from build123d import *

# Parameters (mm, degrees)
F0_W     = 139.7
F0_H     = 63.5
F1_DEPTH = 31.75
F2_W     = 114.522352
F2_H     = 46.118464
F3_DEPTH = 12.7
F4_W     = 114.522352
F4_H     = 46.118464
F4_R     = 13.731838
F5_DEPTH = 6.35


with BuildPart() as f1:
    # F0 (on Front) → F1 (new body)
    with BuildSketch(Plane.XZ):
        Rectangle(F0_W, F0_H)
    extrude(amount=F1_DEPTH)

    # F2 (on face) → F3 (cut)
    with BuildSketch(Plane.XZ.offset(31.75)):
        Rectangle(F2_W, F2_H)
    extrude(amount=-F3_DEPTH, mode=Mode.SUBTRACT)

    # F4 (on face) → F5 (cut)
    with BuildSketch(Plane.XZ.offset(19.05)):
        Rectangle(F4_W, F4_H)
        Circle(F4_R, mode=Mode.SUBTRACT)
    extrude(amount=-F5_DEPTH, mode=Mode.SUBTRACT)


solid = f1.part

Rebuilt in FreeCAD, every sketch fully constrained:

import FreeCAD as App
import Part
import Sketcher

V = App.Vector
Q = App.Units.Quantity


def add_polygon(sketch, points):
    """Adds a closed chain of lines whose ends are joined by coincident constraints."""
    first, n = sketch.GeometryCount, len(points)
    for a, b in zip(points, points[1:] + points[:1]):
        sketch.addGeometry(Part.LineSegment(App.Vector(*a, 0), App.Vector(*b, 0)), False)
    for i in range(n):
        sketch.addConstraint(Sketcher.Constraint("Coincident", first + i, 2, first + (i + 1) % n, 1))

doc = App.newDocument("Part")
params = doc.addObject("Spreadsheet::Sheet", "Params")
for row, (alias, value) in enumerate([
    ("sketch1_width", "5.5 in"),
    ("sketch1_height", "2.5 in"),
    ("pad1_length", "1.25 in"),
    ("pocket1_length", "0.5 in"),
    ("pocket2_length", "0.25 in"),
], start=1):
    params.set(f"A{row}", alias)
    params.set(f"B{row}", "=" + value)
    params.setAlias(f"B{row}", alias)

body = doc.addObject("PartDesign::Body", "Body")

# Sketch on XZ plane
sketch1 = body.newObject("Sketcher::SketchObject", "Sketch")
sketch1.AttachmentSupport = (doc.getObject("XZ_Plane"), [""])
sketch1.MapMode = "FlatFace"
add_polygon(sketch1, [(-70, 32), (-70, -32), (70, -32), (70, 32)])  # lines 0-3
sketch1.addConstraint([
    Sketcher.Constraint("Vertical", 0),
    Sketcher.Constraint("Horizontal", 1),
    Sketcher.Constraint("Vertical", 2),
    Sketcher.Constraint("Horizontal", 3),
    Sketcher.Constraint("Symmetric", 0, 2, 2, 2, -1, 1),
    Sketcher.Constraint("DistanceX", 1, 1, 1, 2, Q("5.5 in")),
    Sketcher.Constraint("DistanceY", 0, 2, 0, 1, Q("2.5 in")),
])
sketch1.setExpression("Constraints[9]", "Params.sketch1_width")
sketch1.setExpression("Constraints[10]", "Params.sketch1_height")
pad1 = body.newObject("PartDesign::Pad", "Pad")
pad1.Profile = sketch1
pad1.setExpression("Length", "Params.pad1_length")

# Sketch on XZ plane
sketch2 = body.newObject("Sketcher::SketchObject", "Sketch001")
sketch2.AttachmentSupport = (doc.getObject("XZ_Plane"), [""])
sketch2.MapMode = "FlatFace"
sketch2.AttachmentOffset = App.Placement(V(0, 0, 1.25 * 25.4), App.Rotation())
add_polygon(sketch2, [(-57, 23), (-57, -23), (57, -23), (57, 23)])  # lines 0-3
sketch2.addConstraint([
    Sketcher.Constraint("Vertical", 0),
    Sketcher.Constraint("Horizontal", 1),
    Sketcher.Constraint("Vertical", 2),
    Sketcher.Constraint("Horizontal", 3),
    Sketcher.Constraint("Symmetric", 0, 2, 2, 2, -1, 1),
    Sketcher.Constraint("DistanceX", 1, 1, 1, 2, Q("114.522352 mm")),
    Sketcher.Constraint("DistanceY", 0, 2, 0, 1, Q("46.118464 mm")),
])
pocket1 = body.newObject("PartDesign::Pocket", "Pocket")
pocket1.Profile = sketch2
pocket1.setExpression("Length", "Params.pocket1_length")

# Sketch on XZ plane
sketch3 = body.newObject("Sketcher::SketchObject", "Sketch002")
sketch3.AttachmentSupport = (doc.getObject("XZ_Plane"), [""])
sketch3.MapMode = "FlatFace"
sketch3.AttachmentOffset = App.Placement(V(0, 0, 0.75 * 25.4), App.Rotation())
add_polygon(sketch3, [(-57, 23), (-57, -23), (57, -23), (57, 23)])  # lines 0-3
sketch3.addGeometry(Part.Circle(V(0, 0, 0), V(0, 0, 1), 14), False)  # 4
sketch3.addConstraint([
    Sketcher.Constraint("Vertical", 0),
    Sketcher.Constraint("Horizontal", 1),
    Sketcher.Constraint("Vertical", 2),
    Sketcher.Constraint("Horizontal", 3),
    Sketcher.Constraint("Coincident", 4, 3, -1, 1),
    Sketcher.Constraint("Symmetric", 0, 2, 2, 2, -1, 1),
    Sketcher.Constraint("Diameter", 4, Q("27.463676 mm")),
    Sketcher.Constraint("DistanceX", 1, 1, 1, 2, Q("114.522352 mm")),
    Sketcher.Constraint("DistanceY", 0, 2, 0, 1, Q("46.118464 mm")),
])
pocket2 = body.newObject("PartDesign::Pocket", "Pocket001")
pocket2.Profile = sketch3
pocket2.setExpression("Length", "Params.pocket2_length")

doc.recompute()
